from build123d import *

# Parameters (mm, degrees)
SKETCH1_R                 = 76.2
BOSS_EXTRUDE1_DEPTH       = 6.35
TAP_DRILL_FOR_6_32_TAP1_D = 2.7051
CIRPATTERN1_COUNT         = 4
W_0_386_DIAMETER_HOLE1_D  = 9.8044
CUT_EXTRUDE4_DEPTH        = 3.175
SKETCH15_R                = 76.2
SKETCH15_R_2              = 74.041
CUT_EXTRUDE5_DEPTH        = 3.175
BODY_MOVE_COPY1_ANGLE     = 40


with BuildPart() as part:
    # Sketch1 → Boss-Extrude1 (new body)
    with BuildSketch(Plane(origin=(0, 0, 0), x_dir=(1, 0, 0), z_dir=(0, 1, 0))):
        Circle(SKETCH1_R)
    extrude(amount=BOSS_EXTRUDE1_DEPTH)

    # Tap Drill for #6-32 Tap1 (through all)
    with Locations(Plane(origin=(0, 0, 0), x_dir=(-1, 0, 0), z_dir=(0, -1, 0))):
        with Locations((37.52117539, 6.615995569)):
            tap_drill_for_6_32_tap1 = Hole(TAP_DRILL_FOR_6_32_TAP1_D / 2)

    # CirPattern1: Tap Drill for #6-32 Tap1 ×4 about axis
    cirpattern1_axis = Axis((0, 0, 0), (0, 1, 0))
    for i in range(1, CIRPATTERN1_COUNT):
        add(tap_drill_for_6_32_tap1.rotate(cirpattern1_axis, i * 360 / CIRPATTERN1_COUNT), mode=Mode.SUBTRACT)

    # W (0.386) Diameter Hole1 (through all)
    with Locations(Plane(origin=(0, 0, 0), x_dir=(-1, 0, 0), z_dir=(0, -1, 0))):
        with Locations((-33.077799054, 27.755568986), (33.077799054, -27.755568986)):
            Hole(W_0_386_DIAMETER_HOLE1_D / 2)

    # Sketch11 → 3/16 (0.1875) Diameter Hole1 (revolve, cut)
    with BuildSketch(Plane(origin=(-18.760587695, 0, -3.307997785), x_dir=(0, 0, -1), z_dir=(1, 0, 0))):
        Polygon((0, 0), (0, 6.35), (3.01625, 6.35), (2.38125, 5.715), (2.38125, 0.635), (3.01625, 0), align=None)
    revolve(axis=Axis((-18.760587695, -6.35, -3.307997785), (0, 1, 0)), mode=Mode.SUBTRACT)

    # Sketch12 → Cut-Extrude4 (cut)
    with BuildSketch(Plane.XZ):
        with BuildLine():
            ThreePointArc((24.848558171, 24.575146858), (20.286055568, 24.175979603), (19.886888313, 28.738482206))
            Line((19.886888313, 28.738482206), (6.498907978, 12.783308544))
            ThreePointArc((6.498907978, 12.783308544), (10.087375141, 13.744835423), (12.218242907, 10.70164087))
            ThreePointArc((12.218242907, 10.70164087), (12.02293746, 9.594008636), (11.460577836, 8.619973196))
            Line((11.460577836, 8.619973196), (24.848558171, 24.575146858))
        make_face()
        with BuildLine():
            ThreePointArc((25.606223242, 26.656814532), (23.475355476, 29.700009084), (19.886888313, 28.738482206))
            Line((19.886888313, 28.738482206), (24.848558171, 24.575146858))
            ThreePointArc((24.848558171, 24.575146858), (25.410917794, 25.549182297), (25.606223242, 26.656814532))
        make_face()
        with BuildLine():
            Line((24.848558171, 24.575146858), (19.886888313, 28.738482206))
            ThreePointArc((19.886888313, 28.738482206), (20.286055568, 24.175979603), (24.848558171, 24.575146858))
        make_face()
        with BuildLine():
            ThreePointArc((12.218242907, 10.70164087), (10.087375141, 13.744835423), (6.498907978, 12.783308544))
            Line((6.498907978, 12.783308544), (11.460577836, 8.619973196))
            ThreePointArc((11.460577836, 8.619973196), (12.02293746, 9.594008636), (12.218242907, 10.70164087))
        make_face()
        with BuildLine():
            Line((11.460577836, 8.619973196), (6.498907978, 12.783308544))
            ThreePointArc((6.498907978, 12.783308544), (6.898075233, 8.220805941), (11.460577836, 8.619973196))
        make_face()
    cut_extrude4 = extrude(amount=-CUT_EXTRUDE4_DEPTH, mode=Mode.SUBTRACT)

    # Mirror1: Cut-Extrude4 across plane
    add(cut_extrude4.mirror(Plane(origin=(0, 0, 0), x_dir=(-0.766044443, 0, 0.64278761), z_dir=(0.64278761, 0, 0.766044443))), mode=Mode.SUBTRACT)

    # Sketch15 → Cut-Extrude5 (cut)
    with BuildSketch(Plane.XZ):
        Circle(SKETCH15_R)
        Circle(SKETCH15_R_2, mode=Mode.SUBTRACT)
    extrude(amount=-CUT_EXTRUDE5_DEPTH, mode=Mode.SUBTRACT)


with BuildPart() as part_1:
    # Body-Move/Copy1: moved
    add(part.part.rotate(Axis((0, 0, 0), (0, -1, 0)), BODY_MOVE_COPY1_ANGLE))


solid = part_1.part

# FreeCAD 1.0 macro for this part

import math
import FreeCAD as App
import Part
import Sketcher
from FreeCAD import Vector
Q = App.Units.Quantity

doc = App.newDocument("Part")
body = doc.addObject("PartDesign::Body", "Body")

sketch1 = doc.addObject("Sketcher::SketchObject", "Sketch")
body.addObject(sketch1)
sketch1.AttachmentSupport = (doc.XZ_Plane, [""])
sketch1.MapMode = "FlatFace"
sketch1.addGeometry(Part.Circle(Vector(0, 0, 0), Vector(0, 0, 1), 76), False)
sketch1.addConstraint(Sketcher.Constraint("Coincident", 0, 3, -1, 1))
sketch1.addConstraint(Sketcher.Constraint("Diameter", 0, Q("6 in")))
pad1 = doc.addObject("PartDesign::Pad", "Pad")
body.addObject(pad1)
pad1.Profile = sketch1
pad1.Length = Q("0.25 in")
pad1.Reversed = True

sketch2 = doc.addObject("Sketcher::SketchObject", "Sketch001")
body.addObject(sketch2)
sketch2.AttachmentSupport = (doc.XZ_Plane, [""])
sketch2.MapMode = "FlatFace"
sketch2.addGeometry(Part.Circle(Vector(-37.5, -6.6, 0), Vector(0, 0, 1), 1.4), False)
sketch2.addConstraint(Sketcher.Constraint("Diameter", 0, Q("0.1065 in")))
sketch2.addConstraint(Sketcher.Constraint("DistanceX", 0, 3, -1, 1, Q("37.521175 mm")))
sketch2.addConstraint(Sketcher.Constraint("DistanceY", 0, 3, -1, 1, Q("6.615996 mm")))
doc.recompute()
hole = doc.addObject("PartDesign::Hole", "Hole")
body.addObject(hole)
hole.Profile = sketch2
hole.ThreadType = "None"
hole.Diameter = Q("0.1065 in")
hole.DepthType = "ThroughAll"
doc.recompute()

polarpattern = doc.addObject("PartDesign::PolarPattern", "PolarPattern")
body.addObject(polarpattern)
polarpattern.Originals = [hole]
polarpattern.Axis = (doc.Y_Axis, [""])
polarpattern.Angle = 360
polarpattern.Occurrences = 4
body.Tip = polarpattern

sketch3 = doc.addObject("Sketcher::SketchObject", "Sketch002")
body.addObject(sketch3)
sketch3.AttachmentSupport = (doc.XZ_Plane, [""])
sketch3.MapMode = "FlatFace"
sketch3.addGeometry(Part.Circle(Vector(33.1, -27.8, 0), Vector(0, 0, 1), 4.9), False)
sketch3.addGeometry(Part.Circle(Vector(-33.1, 27.8, 0), Vector(0, 0, 1), 4.9), False)
sketch3.addConstraint(Sketcher.Constraint("Equal", 0, 1))
sketch3.addConstraint(Sketcher.Constraint("Symmetric", 0, 3, 1, 3, -1, 1))
sketch3.addConstraint(Sketcher.Constraint("Diameter", 0, Q("0.386 in")))
sketch3.addConstraint(Sketcher.Constraint("DistanceX", -1, 1, 0, 3, Q("33.077799 mm")))
sketch3.addConstraint(Sketcher.Constraint("DistanceY", 0, 3, -1, 1, Q("27.755569 mm")))
doc.recompute()
hole2 = doc.addObject("PartDesign::Hole", "Hole001")
body.addObject(hole2)
hole2.Profile = sketch3
hole2.ThreadType = "None"
hole2.Diameter = Q("0.386 in")
hole2.DepthType = "ThroughAll"

sketch4 = doc.addObject("Sketcher::SketchObject", "Sketch003")
body.addObject(sketch4)
sketch4.AttachmentSupport = (doc.YZ_Plane, [""])
sketch4.MapMode = "FlatFace"
sketch4.AttachmentOffset = App.Placement(Vector(0, 0, -18.760588), App.Rotation())
sketch4.addGeometry(Part.LineSegment(Vector(6.3, -3.3, 0), Vector(0, -3.3, 0)), False)
sketch4.addGeometry(Part.LineSegment(Vector(0, -3.3, 0), Vector(0, -6.3, 0)), False)
sketch4.addGeometry(Part.LineSegment(Vector(0, -6.3, 0), Vector(0.6, -5.7, 0)), False)
sketch4.addGeometry(Part.LineSegment(Vector(0.6, -5.7, 0), Vector(5.7, -5.7, 0)), False)
sketch4.addGeometry(Part.LineSegment(Vector(5.7, -5.7, 0), Vector(6.3, -6.3, 0)), False)
sketch4.addGeometry(Part.LineSegment(Vector(6.3, -6.3, 0), Vector(6.3, -3.3, 0)), False)
sketch4.addGeometry(Part.LineSegment(Vector(0, -3.3, 0), Vector(6.3, -3.3, 0)), True)
sketch4.addConstraint(Sketcher.Constraint("Coincident", 0, 2, 1, 1))
sketch4.addConstraint(Sketcher.Constraint("Coincident", 1, 2, 2, 1))
sketch4.addConstraint(Sketcher.Constraint("Coincident", 2, 2, 3, 1))
sketch4.addConstraint(Sketcher.Constraint("Coincident", 3, 2, 4, 1))
sketch4.addConstraint(Sketcher.Constraint("Coincident", 4, 2, 5, 1))
sketch4.addConstraint(Sketcher.Constraint("Coincident", 5, 2, 0, 1))
sketch4.addConstraint(Sketcher.Constraint("Horizontal", 0))
sketch4.addConstraint(Sketcher.Constraint("Vertical", 1))
sketch4.addConstraint(Sketcher.Constraint("Horizontal", 3))
sketch4.addConstraint(Sketcher.Constraint("Vertical", 5))
sketch4.addConstraint(Sketcher.Constraint("Horizontal", 6))
sketch4.addConstraint(Sketcher.Constraint("Coincident", 6, 1, 0, 2))
sketch4.addConstraint(Sketcher.Constraint("PointOnObject", 0, 2, -2))
sketch4.addConstraint(Sketcher.Constraint("Perpendicular", 2, 4))
sketch4.addConstraint(Sketcher.Constraint("Horizontal", 1, 2, 4, 2))
sketch4.addConstraint(Sketcher.Constraint("Vertical", 4, 2, 6, 2))
sketch4.addConstraint(Sketcher.Constraint("Equal", 2, 4))
sketch4.addConstraint(Sketcher.Constraint("DistanceX", 3, 1, 3, 2, Q("0.2 in")))
sketch4.addConstraint(Sketcher.Constraint("DistanceX", 0, 2, 0, 1, Q("0.25 in")))
sketch4.addConstraint(Sketcher.Constraint("DistanceY", 2, 2, 0, 2, Q("0.09375 in")))
sketch4.addConstraint(Sketcher.Constraint("DistanceY", 0, 2, -1, 1, Q("3.307998 mm")))
groove = doc.addObject("PartDesign::Groove", "Groove")
body.addObject(groove)
groove.Profile = sketch4
groove.ReferenceAxis = (sketch4, ["Axis0"])
groove.Angle = 360

sketch5 = doc.addObject("Sketcher::SketchObject", "Sketch004")
body.addObject(sketch5)
sketch5.AttachmentSupport = (doc.XZ_Plane, [""])
sketch5.MapMode = "FlatFace"
sketch5.addGeometry(Part.ArcOfCircle(Part.Circle(Vector(22.4, 26.7, 0), Vector(0, 0, 1), 3.2), math.radians(-40), math.radians(0)), False)
sketch5.addGeometry(Part.ArcOfCircle(Part.Circle(Vector(22.4, 26.7, 0), Vector(0, 0, 1), 3.2), math.radians(0), math.radians(140)), False)
sketch5.addGeometry(Part.LineSegment(Vector(19.9, 28.7, 0), Vector(6.5, 12.8, 0)), False)
sketch5.addGeometry(Part.ArcOfCircle(Part.Circle(Vector(9, 10.7, 0), Vector(0, 0, 1), 3.2), math.radians(140), math.radians(320)), False)
sketch5.addGeometry(Part.LineSegment(Vector(11.5, 8.6, 0), Vector(24.8, 24.6, 0)), False)
sketch5.addConstraint(Sketcher.Constraint("Tangent", 0, 2, 1, 1))
sketch5.addConstraint(Sketcher.Constraint("Tangent", 1, 2, 2, 1))
sketch5.addConstraint(Sketcher.Constraint("Tangent", 2, 2, 3, 1))
sketch5.addConstraint(Sketcher.Constraint("Tangent", 3, 2, 4, 1))
sketch5.addConstraint(Sketcher.Constraint("Tangent", 4, 2, 0, 1))
sketch5.addConstraint(Sketcher.Constraint("Equal", 0, 1))
sketch5.addConstraint(Sketcher.Constraint("Equal", 1, 3))
sketch5.addConstraint(Sketcher.Constraint("Horizontal", 1, 3, 0, 2))
sketch5.addConstraint(Sketcher.Constraint("Angle", 2, Q("-130 deg")))
sketch5.addConstraint(Sketcher.Constraint("Radius", 0, Q("0.1275 in")))
sketch5.addConstraint(Sketcher.Constraint("Distance", 2, Q("0.82 in")))
sketch5.addConstraint(Sketcher.Constraint("DistanceY", -1, 1, 3, 3, Q("10.701641 mm")))
sketch5.addConstraint(Sketcher.Constraint("DistanceX", -1, 1, 1, 2, Q("19.886888 mm")))
pocket1 = doc.addObject("PartDesign::Pocket", "Pocket")
body.addObject(pocket1)
pocket1.Profile = sketch5
pocket1.Length = Q("0.125 in")
doc.recompute()

datumplane = doc.addObject("PartDesign::Plane", "DatumPlane")
body.addObject(datumplane)
datumplane.Placement = App.Placement(Vector(0, 0, 0), App.Rotation(Vector(-0.766044443, 0, 0.64278761), Vector(0, -1, 0), Vector(0.64278761, 0, 0.766044443), "ZXY"))
mirrored = doc.addObject("PartDesign::Mirrored", "Mirrored")
body.addObject(mirrored)
mirrored.Originals = [pocket1]
mirrored.MirrorPlane = (datumplane, [""])
body.Tip = mirrored

sketch6 = doc.addObject("Sketcher::SketchObject", "Sketch005")
body.addObject(sketch6)
sketch6.AttachmentSupport = (doc.XZ_Plane, [""])
sketch6.MapMode = "FlatFace"
sketch6.addGeometry(Part.Circle(Vector(0, 0, 0), Vector(0, 0, 1), 76), False)
sketch6.addGeometry(Part.Circle(Vector(0, 0, 0), Vector(0, 0, 1), 74), False)
sketch6.addConstraint(Sketcher.Constraint("Coincident", 0, 3, -1, 1))
sketch6.addConstraint(Sketcher.Constraint("Coincident", 1, 3, -1, 1))
sketch6.addConstraint(Sketcher.Constraint("Diameter", 0, Q("6 in")))
sketch6.addConstraint(Sketcher.Constraint("Diameter", 1, Q("5.83 in")))
pocket2 = doc.addObject("PartDesign::Pocket", "Pocket001")
body.addObject(pocket2)
pocket2.Profile = sketch6
pocket2.Length = Q("0.125 in")
body2 = doc.addObject("PartDesign::Body", "Body001")
doc.recompute()

body.Placement = App.Placement(Vector(0, 0, 0), App.Rotation(Vector(0, -1, 0), 40))
boolean = doc.addObject("PartDesign::Boolean", "Boolean")
body2.addObject(boolean)
boolean.Type = "Fuse"
boolean.addObjects([body])

doc.recompute()
